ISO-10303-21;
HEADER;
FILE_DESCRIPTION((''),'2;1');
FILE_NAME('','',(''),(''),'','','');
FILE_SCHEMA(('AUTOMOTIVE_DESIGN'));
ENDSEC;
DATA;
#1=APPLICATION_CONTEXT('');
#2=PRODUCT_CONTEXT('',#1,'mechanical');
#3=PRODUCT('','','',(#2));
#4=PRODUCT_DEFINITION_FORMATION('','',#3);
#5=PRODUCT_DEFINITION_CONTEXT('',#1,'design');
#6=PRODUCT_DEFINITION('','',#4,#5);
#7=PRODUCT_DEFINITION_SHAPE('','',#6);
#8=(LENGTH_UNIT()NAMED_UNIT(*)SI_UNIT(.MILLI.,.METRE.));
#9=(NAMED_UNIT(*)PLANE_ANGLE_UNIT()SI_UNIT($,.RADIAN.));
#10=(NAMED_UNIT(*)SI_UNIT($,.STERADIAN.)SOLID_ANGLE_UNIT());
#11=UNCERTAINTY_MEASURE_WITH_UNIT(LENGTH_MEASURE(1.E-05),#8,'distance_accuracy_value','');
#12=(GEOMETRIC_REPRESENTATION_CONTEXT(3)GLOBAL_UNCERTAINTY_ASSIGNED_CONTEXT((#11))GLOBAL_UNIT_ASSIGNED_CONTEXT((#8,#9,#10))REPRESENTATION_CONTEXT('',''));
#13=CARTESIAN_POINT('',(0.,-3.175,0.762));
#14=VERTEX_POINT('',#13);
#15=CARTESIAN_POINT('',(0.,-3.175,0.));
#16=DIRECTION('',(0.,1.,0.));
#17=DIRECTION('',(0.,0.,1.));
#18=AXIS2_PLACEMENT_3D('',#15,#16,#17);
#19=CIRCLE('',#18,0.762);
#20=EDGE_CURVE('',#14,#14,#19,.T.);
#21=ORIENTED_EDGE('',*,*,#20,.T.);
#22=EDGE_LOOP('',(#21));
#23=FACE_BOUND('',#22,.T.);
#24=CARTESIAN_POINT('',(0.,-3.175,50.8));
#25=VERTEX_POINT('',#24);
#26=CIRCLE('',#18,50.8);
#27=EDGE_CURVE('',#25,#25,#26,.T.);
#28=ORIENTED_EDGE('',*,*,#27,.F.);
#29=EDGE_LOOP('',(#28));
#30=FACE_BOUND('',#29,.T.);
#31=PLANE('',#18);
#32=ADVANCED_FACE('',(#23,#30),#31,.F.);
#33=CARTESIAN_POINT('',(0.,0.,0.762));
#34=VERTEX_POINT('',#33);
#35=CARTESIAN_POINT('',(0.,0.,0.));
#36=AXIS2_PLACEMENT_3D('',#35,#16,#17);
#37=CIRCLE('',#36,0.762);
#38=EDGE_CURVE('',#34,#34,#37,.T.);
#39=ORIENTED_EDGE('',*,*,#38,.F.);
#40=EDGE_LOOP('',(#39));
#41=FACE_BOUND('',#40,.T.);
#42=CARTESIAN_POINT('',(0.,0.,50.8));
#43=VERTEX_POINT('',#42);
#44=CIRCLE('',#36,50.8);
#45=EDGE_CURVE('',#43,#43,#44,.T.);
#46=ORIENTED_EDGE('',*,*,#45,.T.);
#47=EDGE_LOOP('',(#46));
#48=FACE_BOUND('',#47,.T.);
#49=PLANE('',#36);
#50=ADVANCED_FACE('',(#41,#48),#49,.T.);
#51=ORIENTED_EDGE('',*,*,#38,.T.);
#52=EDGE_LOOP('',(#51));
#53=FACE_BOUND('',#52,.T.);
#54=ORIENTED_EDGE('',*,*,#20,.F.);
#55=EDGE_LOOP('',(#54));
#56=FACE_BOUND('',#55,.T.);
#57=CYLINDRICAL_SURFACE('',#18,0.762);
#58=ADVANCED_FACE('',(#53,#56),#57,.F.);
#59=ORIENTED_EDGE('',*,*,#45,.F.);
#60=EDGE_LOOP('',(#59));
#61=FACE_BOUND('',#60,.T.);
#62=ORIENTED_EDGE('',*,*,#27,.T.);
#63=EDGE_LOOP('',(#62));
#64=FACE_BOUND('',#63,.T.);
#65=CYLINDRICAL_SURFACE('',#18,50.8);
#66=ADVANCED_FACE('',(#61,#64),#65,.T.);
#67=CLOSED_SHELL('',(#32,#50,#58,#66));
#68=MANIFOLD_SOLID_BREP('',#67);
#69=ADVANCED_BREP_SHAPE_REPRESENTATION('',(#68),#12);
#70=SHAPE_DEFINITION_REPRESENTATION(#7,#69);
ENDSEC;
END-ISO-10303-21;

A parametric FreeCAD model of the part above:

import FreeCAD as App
import Part
import Sketcher
from FreeCAD import Vector
Q = App.Units.Quantity

doc = App.newDocument("Part")
body = doc.addObject("PartDesign::Body", "Body")

# Sketch on XZ plane
sketch1 = body.newObject("Sketcher::SketchObject", "Sketch")
sketch1.AttachmentSupport = (doc.getObject("XZ_Plane"), [""])
sketch1.MapMode = "FlatFace"
sketch1.addGeometry(Part.Circle(Vector(0, 0, 0), Vector(0, 0, 1), 50.8), False)
sketch1.addGeometry(Part.Circle(Vector(0, 0, 0), Vector(0, 0, 1), 0.762), False)
sketch1.addConstraint(Sketcher.Constraint("Coincident", 0, 3, -1, 1))
sketch1.addConstraint(Sketcher.Constraint("Coincident", 1, 3, -1, 1))
sketch1.addConstraint(Sketcher.Constraint("Diameter", 0, Q("4 in")))
sketch1.addConstraint(Sketcher.Constraint("Diameter", 1, Q("0.06 in")))
pad1 = body.newObject("PartDesign::Pad", "Pad")
pad1.Profile = sketch1
pad1.Length = Q("0.125 in")

doc.recompute()
